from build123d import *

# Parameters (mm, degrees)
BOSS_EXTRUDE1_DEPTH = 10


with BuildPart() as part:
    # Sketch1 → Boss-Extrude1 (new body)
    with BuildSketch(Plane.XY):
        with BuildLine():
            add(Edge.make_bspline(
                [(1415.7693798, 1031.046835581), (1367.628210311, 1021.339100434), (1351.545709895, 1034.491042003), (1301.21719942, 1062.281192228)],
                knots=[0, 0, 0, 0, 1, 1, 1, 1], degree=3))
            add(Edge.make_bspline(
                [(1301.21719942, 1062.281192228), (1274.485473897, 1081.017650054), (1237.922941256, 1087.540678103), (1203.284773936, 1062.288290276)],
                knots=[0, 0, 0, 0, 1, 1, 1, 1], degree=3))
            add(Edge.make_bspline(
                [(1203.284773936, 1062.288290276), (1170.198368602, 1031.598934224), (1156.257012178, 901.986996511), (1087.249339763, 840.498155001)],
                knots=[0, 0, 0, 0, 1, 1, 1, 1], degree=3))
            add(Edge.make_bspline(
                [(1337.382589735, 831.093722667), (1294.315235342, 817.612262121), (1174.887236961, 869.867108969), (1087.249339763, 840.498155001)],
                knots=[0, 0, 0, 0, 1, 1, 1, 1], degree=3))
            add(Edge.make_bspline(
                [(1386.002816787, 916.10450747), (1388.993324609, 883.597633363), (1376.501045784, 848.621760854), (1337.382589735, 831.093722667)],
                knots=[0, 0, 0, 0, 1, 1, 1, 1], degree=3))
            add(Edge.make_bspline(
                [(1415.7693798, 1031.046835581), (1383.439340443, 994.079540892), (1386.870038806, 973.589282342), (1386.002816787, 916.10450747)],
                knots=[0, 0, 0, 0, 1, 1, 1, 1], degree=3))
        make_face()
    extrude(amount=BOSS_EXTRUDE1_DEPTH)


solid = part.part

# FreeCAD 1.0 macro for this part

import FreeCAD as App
import Part
import Sketcher

doc = App.newDocument("Part")
body = doc.addObject("PartDesign::Body", "Body")

# Sketch on XY plane
sketch1 = body.newObject("Sketcher::SketchObject", "Sketch")
sketch1.AttachmentSupport = (doc.getObject("XY_Plane"), [""])
sketch1.MapMode = "FlatFace"
sketch1.addGeometry(Part.BSplineCurve([App.Vector(1415.76938, 1031.046836, 0), App.Vector(1367.62821, 1021.3391, 0), App.Vector(1351.54571, 1034.491042, 0), App.Vector(1301.217199, 1062.281192, 0)], [4, 4], [0, 1], False, 3, [1, 1, 1, 1], False), False)
sketch1.addGeometry(Part.BSplineCurve([App.Vector(1301.217199, 1062.281192, 0), App.Vector(1274.485474, 1081.01765, 0), App.Vector(1237.922941, 1087.540678, 0), App.Vector(1203.284774, 1062.28829, 0)], [4, 4], [0, 1], False, 3, [1, 1, 1, 1], False), False)
sketch1.addGeometry(Part.BSplineCurve([App.Vector(1203.284774, 1062.28829, 0), App.Vector(1170.198369, 1031.598934, 0), App.Vector(1156.257012, 901.986997, 0), App.Vector(1087.24934, 840.498155, 0)], [4, 4], [0, 1], False, 3, [1, 1, 1, 1], False), False)
sketch1.addGeometry(Part.BSplineCurve([App.Vector(1337.38259, 831.093723, 0), App.Vector(1294.315235, 817.612262, 0), App.Vector(1174.887237, 869.867109, 0), App.Vector(1087.24934, 840.498155, 0)], [4, 4], [0, 1], False, 3, [1, 1, 1, 1], False), False)
sketch1.addGeometry(Part.BSplineCurve([App.Vector(1386.002817, 916.104507, 0), App.Vector(1388.993325, 883.597633, 0), App.Vector(1376.501046, 848.621761, 0), App.Vector(1337.38259, 831.093723, 0)], [4, 4], [0, 1], False, 3, [1, 1, 1, 1], False), False)
sketch1.addGeometry(Part.BSplineCurve([App.Vector(1415.76938, 1031.046836, 0), App.Vector(1383.43934, 994.079541, 0), App.Vector(1386.870039, 973.589282, 0), App.Vector(1386.002817, 916.104507, 0)], [4, 4], [0, 1], False, 3, [1, 1, 1, 1], False), False)
sketch1.addConstraint(Sketcher.Constraint("Block", 0))
sketch1.addConstraint(Sketcher.Constraint("Block", 1))
sketch1.addConstraint(Sketcher.Constraint("Block", 2))
sketch1.addConstraint(Sketcher.Constraint("Block", 3))
sketch1.addConstraint(Sketcher.Constraint("Block", 4))
sketch1.addConstraint(Sketcher.Constraint("Block", 5))
pad1 = body.newObject("PartDesign::Pad", "Pad")
pad1.Profile = sketch1
pad1.Length = 10

doc.recompute()
